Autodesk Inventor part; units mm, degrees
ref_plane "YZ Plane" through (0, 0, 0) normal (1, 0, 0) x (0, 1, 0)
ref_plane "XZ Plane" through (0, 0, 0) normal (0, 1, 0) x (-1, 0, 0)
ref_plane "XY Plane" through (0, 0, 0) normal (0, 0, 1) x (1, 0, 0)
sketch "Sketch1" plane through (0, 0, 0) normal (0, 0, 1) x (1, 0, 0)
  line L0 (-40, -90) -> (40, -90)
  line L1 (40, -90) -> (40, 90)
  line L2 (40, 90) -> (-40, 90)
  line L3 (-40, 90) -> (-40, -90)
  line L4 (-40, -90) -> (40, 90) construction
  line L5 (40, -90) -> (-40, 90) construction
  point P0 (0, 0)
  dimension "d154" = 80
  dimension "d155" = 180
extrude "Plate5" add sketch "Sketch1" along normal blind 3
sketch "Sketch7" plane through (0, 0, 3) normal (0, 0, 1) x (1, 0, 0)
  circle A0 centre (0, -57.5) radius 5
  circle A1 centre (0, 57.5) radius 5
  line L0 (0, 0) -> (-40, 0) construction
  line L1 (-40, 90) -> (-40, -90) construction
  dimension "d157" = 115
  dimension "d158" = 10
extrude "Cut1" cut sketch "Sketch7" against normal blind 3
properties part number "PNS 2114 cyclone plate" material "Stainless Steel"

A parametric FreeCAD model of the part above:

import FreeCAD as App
import Part
import Sketcher
from FreeCAD import Vector


def add_polygon(sketch, points):
    """Adds a closed chain of lines whose ends are joined by coincident constraints."""
    first, n = sketch.GeometryCount, len(points)
    for a, b in zip(points, points[1:] + points[:1]):
        sketch.addGeometry(Part.LineSegment(App.Vector(*a, 0), App.Vector(*b, 0)), False)
    for i in range(n):
        sketch.addConstraint(Sketcher.Constraint("Coincident", first + i, 2, first + (i + 1) % n, 1))

doc = App.newDocument("Part")
params = doc.addObject("Spreadsheet::Sheet", "Params")
for row, (alias, value) in enumerate([
    ("sketch1_width", "80 mm"),
    ("sketch1_height", "180 mm"),
    ("pad1_length", "3 mm"),
    ("sketch2_diameter", "10 mm"),
    ("pocket1_length", "3 mm"),
], start=1):
    params.set(f"A{row}", alias)
    params.set(f"B{row}", "=" + value)
    params.setAlias(f"B{row}", alias)

body = doc.addObject("PartDesign::Body", "Body")

sketch1 = body.newObject("Sketcher::SketchObject", "Sketch")
sketch1.AttachmentSupport = (doc.getObject("XY_Plane"), [""])
sketch1.MapMode = "FlatFace"
add_polygon(sketch1, [(-40, 90), (-40, -90), (40, -90), (40, 90)])
sketch1.addConstraint([
    Sketcher.Constraint("Vertical", 0),
    Sketcher.Constraint("Horizontal", 1),
    Sketcher.Constraint("Vertical", 2),
    Sketcher.Constraint("Horizontal", 3),
    Sketcher.Constraint("Symmetric", 0, 2, 2, 2, -1, 1),
    Sketcher.Constraint("DistanceX", 1, 1, 1, 2, 80.0),
    Sketcher.Constraint("DistanceY", 0, 2, 0, 1, 180.0),
])
sketch1.setExpression("Constraints[9]", "Params.sketch1_width")
sketch1.setExpression("Constraints[10]", "Params.sketch1_height")
pad1 = body.newObject("PartDesign::Pad", "Pad")
pad1.Profile = sketch1
pad1.setExpression("Length", "Params.pad1_length")

sketch2 = body.newObject("Sketcher::SketchObject", "Sketch001")
sketch2.AttachmentSupport = (doc.getObject("XY_Plane"), [""])
sketch2.MapMode = "FlatFace"
sketch2.AttachmentOffset = App.Placement(Vector(0, 0, 3), App.Rotation())
sketch2.addGeometry([
    Part.Circle(Vector(0, -58, 0), Vector(0, 0, 1), 5),
    Part.Circle(Vector(0, 58, 0), Vector(0, 0, 1), 5),
], False)
sketch2.addConstraint([
    Sketcher.Constraint("Equal", 0, 1),
    Sketcher.Constraint("Symmetric", 0, 3, 1, 3, -1, 1),
    Sketcher.Constraint("PointOnObject", 0, 3, -2),
    Sketcher.Constraint("Diameter", 0, 10.0),
    Sketcher.Constraint("DistanceY", 0, 3, 1, 3, 115.0),
])
sketch2.setExpression("Constraints[3]", "Params.sketch2_diameter")
pocket1 = body.newObject("PartDesign::Pocket", "Pocket")
pocket1.Profile = sketch2
pocket1.setExpression("Length", "Params.pocket1_length")

doc.recompute()
